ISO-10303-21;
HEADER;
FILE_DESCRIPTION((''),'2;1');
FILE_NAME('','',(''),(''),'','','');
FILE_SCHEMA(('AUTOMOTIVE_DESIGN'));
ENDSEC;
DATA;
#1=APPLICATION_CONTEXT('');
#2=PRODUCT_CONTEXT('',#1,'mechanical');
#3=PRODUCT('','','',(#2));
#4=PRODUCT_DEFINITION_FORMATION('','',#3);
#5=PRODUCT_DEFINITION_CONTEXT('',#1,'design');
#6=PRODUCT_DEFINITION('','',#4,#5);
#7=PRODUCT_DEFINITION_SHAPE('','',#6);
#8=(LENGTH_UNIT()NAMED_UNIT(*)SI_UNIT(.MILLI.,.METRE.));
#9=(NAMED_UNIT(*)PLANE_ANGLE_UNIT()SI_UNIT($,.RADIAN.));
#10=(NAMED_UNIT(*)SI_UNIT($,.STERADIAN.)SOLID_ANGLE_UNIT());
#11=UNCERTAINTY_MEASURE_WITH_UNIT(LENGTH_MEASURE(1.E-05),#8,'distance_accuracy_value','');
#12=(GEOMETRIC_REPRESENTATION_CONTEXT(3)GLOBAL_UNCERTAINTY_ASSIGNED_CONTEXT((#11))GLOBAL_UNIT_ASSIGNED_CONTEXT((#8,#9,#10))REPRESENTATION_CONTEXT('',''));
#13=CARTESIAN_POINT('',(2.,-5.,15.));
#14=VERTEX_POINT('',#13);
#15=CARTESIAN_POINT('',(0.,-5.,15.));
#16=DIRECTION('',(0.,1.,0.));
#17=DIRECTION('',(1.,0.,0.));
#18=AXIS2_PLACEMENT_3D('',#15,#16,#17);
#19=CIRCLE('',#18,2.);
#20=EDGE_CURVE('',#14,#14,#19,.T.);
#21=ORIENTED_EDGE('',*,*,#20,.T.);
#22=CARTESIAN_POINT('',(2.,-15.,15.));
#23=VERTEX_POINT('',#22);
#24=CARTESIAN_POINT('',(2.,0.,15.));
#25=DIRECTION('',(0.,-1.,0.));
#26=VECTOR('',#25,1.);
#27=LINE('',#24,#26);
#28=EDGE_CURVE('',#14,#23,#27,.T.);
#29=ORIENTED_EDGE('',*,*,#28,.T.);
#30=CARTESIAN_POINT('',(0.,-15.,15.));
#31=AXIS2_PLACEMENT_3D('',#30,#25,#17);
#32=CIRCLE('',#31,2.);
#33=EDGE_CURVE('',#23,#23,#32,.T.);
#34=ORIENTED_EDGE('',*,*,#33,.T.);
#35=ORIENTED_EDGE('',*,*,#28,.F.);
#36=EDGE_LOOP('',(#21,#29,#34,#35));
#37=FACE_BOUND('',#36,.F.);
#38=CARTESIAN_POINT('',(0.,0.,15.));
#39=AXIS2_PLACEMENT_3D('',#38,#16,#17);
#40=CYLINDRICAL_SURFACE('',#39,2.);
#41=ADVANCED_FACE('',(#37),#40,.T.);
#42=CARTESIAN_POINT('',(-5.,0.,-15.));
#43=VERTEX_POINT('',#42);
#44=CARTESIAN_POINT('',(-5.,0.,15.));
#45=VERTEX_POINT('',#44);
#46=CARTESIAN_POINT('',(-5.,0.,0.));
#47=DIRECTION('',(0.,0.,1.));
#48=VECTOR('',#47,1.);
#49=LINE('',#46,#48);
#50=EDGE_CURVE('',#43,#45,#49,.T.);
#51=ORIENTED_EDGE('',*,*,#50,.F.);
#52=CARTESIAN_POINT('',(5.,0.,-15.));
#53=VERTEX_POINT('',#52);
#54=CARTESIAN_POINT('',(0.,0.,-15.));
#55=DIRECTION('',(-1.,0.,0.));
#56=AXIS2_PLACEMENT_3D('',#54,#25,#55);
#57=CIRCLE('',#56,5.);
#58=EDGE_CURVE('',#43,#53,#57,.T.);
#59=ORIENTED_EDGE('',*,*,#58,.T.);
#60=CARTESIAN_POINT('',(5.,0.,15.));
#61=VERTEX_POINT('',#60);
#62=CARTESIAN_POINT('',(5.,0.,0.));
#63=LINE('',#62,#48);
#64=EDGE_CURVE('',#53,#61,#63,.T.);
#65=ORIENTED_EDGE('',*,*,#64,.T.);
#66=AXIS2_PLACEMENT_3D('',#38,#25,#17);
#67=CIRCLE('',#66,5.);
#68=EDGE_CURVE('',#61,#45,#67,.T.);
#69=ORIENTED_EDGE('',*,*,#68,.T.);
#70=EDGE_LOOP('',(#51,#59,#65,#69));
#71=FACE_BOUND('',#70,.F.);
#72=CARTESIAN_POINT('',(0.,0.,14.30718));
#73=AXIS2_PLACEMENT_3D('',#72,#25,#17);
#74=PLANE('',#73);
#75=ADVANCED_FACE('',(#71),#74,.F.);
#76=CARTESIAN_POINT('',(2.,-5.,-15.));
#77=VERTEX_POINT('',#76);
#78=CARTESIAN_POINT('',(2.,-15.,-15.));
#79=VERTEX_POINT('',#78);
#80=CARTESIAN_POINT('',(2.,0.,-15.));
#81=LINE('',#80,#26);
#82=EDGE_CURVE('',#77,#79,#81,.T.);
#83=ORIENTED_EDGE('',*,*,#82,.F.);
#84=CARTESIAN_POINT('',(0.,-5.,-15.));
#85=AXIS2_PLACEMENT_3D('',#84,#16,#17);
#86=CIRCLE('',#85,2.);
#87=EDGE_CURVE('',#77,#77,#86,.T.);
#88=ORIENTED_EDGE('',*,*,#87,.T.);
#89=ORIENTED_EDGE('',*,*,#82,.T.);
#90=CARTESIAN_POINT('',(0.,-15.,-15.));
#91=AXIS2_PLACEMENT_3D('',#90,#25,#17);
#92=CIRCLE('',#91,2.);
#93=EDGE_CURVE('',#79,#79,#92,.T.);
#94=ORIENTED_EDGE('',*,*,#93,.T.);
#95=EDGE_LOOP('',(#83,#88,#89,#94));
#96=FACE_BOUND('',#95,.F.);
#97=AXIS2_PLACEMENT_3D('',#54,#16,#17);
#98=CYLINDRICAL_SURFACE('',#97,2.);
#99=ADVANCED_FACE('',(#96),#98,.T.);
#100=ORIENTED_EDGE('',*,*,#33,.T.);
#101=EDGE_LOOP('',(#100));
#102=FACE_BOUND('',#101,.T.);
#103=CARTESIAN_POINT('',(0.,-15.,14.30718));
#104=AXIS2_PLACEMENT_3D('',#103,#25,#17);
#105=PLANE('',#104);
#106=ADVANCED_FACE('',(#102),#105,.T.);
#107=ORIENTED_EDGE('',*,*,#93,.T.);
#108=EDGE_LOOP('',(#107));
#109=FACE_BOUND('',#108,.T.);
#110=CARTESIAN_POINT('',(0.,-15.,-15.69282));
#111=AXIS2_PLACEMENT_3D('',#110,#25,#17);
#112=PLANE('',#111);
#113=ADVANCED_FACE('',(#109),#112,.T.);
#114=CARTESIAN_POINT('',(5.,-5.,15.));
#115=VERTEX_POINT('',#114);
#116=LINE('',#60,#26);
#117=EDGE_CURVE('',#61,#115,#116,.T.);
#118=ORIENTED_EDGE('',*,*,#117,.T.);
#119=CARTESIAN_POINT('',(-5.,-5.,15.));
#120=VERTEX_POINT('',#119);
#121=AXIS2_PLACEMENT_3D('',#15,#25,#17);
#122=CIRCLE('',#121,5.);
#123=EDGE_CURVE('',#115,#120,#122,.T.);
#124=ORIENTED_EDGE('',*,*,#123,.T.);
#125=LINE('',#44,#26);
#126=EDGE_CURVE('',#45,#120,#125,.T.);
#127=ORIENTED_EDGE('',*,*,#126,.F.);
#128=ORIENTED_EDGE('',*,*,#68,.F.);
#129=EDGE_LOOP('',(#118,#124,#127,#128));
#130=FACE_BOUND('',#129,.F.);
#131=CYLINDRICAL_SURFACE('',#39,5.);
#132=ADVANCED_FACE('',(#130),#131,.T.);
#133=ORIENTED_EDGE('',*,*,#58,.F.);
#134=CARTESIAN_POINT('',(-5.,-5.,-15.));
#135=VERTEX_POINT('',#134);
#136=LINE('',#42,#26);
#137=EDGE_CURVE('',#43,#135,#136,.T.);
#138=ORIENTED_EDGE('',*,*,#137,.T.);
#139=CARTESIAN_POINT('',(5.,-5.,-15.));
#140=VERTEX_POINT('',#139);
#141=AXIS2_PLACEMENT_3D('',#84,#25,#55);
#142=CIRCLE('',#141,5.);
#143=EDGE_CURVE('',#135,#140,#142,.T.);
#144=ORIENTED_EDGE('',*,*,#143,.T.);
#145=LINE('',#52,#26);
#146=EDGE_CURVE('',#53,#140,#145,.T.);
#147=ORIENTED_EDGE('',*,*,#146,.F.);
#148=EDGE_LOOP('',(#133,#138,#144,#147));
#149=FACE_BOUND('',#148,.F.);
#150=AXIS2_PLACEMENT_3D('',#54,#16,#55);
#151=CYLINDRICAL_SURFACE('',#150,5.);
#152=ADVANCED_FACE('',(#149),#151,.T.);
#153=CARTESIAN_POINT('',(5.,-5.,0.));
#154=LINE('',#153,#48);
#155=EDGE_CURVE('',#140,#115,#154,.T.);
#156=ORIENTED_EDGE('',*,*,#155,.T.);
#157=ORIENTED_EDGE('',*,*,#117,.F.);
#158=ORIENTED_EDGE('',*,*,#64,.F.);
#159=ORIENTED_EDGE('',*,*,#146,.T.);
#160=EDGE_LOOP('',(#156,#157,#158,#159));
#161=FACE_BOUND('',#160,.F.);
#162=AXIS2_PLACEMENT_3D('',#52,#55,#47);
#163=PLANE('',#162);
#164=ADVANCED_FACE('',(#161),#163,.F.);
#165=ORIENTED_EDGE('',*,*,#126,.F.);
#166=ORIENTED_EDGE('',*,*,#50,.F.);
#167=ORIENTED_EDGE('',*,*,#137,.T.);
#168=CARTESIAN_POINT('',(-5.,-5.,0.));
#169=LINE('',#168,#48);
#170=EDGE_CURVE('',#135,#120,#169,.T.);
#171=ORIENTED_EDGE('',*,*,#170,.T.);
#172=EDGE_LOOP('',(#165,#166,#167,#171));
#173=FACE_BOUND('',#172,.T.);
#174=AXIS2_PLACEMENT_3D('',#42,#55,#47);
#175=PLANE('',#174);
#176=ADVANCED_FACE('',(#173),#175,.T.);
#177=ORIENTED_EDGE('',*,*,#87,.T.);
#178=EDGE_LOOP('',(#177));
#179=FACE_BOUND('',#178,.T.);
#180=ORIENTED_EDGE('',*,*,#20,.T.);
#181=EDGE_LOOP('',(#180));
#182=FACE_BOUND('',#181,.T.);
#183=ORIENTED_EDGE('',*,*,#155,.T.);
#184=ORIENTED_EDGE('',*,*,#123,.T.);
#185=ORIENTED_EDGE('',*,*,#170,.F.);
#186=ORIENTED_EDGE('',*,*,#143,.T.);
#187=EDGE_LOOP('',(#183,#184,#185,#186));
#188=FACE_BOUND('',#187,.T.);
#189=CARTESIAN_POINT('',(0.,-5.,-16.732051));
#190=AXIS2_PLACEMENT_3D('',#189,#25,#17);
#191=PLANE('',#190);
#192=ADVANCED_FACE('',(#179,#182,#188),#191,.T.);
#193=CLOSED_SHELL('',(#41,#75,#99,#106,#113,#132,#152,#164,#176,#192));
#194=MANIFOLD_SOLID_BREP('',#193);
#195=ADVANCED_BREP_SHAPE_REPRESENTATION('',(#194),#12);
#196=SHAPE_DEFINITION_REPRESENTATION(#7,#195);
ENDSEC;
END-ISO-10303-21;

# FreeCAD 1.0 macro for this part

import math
import FreeCAD as App
import Part
import Sketcher

V = App.Vector
Q = App.Units.Quantity

doc = App.newDocument("Part")
body = doc.addObject("PartDesign::Body", "Body")

# Sketch on XZ plane
sketch1 = body.newObject("Sketcher::SketchObject", "Sketch")
sketch1.AttachmentSupport = (doc.getObject("XZ_Plane"), [""])
sketch1.MapMode = "FlatFace"
sketch1.addGeometry(Part.ArcOfCircle(Part.Circle(V(0, -15, 0), V(0, 0, 1), 5), math.radians(180), math.radians(360)), False)
sketch1.addGeometry(Part.LineSegment(V(5, -15, 0), V(5, 15, 0)), False)
sketch1.addGeometry(Part.ArcOfCircle(Part.Circle(V(0, 15, 0), V(0, 0, 1), 5), math.radians(0), math.radians(180)), False)
sketch1.addGeometry(Part.LineSegment(V(-5, 15, 0), V(-5, -15, 0)), False)
sketch1.addConstraint(Sketcher.Constraint("Tangent", 0, 2, 1, 1))
sketch1.addConstraint(Sketcher.Constraint("Tangent", 1, 2, 2, 1))
sketch1.addConstraint(Sketcher.Constraint("Tangent", 2, 2, 3, 1))
sketch1.addConstraint(Sketcher.Constraint("Tangent", 3, 2, 0, 1))
sketch1.addConstraint(Sketcher.Constraint("Vertical", 1))
sketch1.addConstraint(Sketcher.Constraint("Vertical", 3))
sketch1.addConstraint(Sketcher.Constraint("Symmetric", 0, 3, 2, 3, -1, 1))
sketch1.addConstraint(Sketcher.Constraint("Radius", 0, Q("5 mm")))
sketch1.addConstraint(Sketcher.Constraint("DistanceY", 1, 1, 1, 2, Q("30 mm")))
pad1 = body.newObject("PartDesign::Pad", "Pad")
pad1.Profile = sketch1
pad1.Length = 5

# Sketch on XZ plane
sketch2 = body.newObject("Sketcher::SketchObject", "Sketch001")
sketch2.AttachmentSupport = (doc.getObject("XZ_Plane"), [""])
sketch2.MapMode = "FlatFace"
sketch2.addGeometry(Part.Circle(V(0, 15, 0), V(0, 0, 1), 2), False)
sketch2.addGeometry(Part.Circle(V(0, -15, 0), V(0, 0, 1), 2), False)
sketch2.addConstraint(Sketcher.Constraint("Equal", 0, 1))
sketch2.addConstraint(Sketcher.Constraint("Symmetric", 0, 3, 1, 3, -1, 1))
sketch2.addConstraint(Sketcher.Constraint("PointOnObject", 0, 3, -2))
sketch2.addConstraint(Sketcher.Constraint("Diameter", 0, Q("4 mm")))
sketch2.addConstraint(Sketcher.Constraint("DistanceY", -1, 1, 0, 3, Q("15 mm")))
pad2 = body.newObject("PartDesign::Pad", "Pad001")
pad2.Profile = sketch2
pad2.Length = 15

doc.recompute()
